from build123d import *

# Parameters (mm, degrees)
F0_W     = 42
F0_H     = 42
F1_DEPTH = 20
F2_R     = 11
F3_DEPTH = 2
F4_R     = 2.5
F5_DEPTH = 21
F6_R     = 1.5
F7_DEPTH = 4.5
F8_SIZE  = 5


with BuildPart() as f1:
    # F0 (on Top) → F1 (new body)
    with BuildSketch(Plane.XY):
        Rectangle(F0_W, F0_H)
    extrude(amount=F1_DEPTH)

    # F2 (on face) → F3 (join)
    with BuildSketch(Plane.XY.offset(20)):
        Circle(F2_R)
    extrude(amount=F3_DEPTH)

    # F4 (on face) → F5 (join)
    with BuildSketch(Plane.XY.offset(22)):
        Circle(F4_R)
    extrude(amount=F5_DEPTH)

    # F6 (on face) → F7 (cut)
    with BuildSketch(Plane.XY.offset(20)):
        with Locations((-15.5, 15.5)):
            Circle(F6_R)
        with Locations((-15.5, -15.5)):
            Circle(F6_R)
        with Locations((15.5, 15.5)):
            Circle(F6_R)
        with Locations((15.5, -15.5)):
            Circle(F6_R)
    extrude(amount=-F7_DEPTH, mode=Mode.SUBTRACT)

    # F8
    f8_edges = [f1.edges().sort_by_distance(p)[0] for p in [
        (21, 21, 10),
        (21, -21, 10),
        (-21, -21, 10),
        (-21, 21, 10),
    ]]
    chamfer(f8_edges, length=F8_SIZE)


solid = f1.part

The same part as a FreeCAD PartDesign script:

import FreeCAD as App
import Part
import Sketcher
from FreeCAD import Vector
Q = App.Units.Quantity


def edges_at(feature, points):
    """Names of the edges that pass closest to the given points."""
    edges = feature.Shape.Edges
    near = lambda p: min(range(len(edges)), key=lambda i: edges[i].distToShape(Part.Vertex(*p))[0])
    return sorted({f"Edge{near(p) + 1}" for p in points})


def add_polygon(sketch, points):
    """Adds a closed chain of lines whose ends are joined by coincident constraints."""
    first, n = sketch.GeometryCount, len(points)
    for a, b in zip(points, points[1:] + points[:1]):
        sketch.addGeometry(Part.LineSegment(App.Vector(*a, 0), App.Vector(*b, 0)), False)
    for i in range(n):
        sketch.addConstraint(Sketcher.Constraint("Coincident", first + i, 2, first + (i + 1) % n, 1))

doc = App.newDocument("Part")
body = doc.addObject("PartDesign::Body", "Body")

sketch1 = body.newObject("Sketcher::SketchObject", "Sketch")
sketch1.AttachmentSupport = (doc.getObject("XY_Plane"), [""])
sketch1.MapMode = "FlatFace"
add_polygon(sketch1, [(-21, 21), (-21, -21), (21, -21), (21, 21)])
sketch1.addConstraint([
    Sketcher.Constraint("Vertical", 0),
    Sketcher.Constraint("Horizontal", 1),
    Sketcher.Constraint("Vertical", 2),
    Sketcher.Constraint("Horizontal", 3),
    Sketcher.Constraint("Symmetric", 0, 2, 2, 2, -1, 1),
    Sketcher.Constraint("Equal", 3, 0),
    Sketcher.Constraint("DistanceX", 1, 1, 1, 2, Q("42 mm")),
])
pad1 = body.newObject("PartDesign::Pad", "Pad")
pad1.Profile = sketch1
pad1.Length = 20

sketch2 = body.newObject("Sketcher::SketchObject", "Sketch001")
sketch2.AttachmentSupport = (doc.getObject("XY_Plane"), [""])
sketch2.MapMode = "FlatFace"
sketch2.AttachmentOffset = App.Placement(Vector(0, 0, 20), App.Rotation())
sketch2.addGeometry(Part.Circle(Vector(0, 0, 0), Vector(0, 0, 1), 11), False)
sketch2.addConstraint([
    Sketcher.Constraint("Coincident", 0, 3, -1, 1),
    Sketcher.Constraint("Diameter", 0, Q("22 mm")),
])
pad2 = body.newObject("PartDesign::Pad", "Pad001")
pad2.Profile = sketch2
pad2.Length = 2

sketch3 = body.newObject("Sketcher::SketchObject", "Sketch002")
sketch3.AttachmentSupport = (doc.getObject("XY_Plane"), [""])
sketch3.MapMode = "FlatFace"
sketch3.AttachmentOffset = App.Placement(Vector(0, 0, 22), App.Rotation())
sketch3.addGeometry(Part.Circle(Vector(0, 0, 0), Vector(0, 0, 1), 2.5), False)
sketch3.addConstraint([
    Sketcher.Constraint("Coincident", 0, 3, -1, 1),
    Sketcher.Constraint("Diameter", 0, Q("5 mm")),
])
pad3 = body.newObject("PartDesign::Pad", "Pad002")
pad3.Profile = sketch3
pad3.Length = 21

sketch4 = body.newObject("Sketcher::SketchObject", "Sketch003")
sketch4.AttachmentSupport = (doc.getObject("XY_Plane"), [""])
sketch4.MapMode = "FlatFace"
sketch4.AttachmentOffset = App.Placement(Vector(0, 0, 20), App.Rotation())
sketch4.addGeometry([
    Part.Circle(Vector(-15.5, 15.5, 0), Vector(0, 0, 1), 1.5),
    Part.Circle(Vector(-15.5, -15.5, 0), Vector(0, 0, 1), 1.5),
    Part.Circle(Vector(15.5, 15.5, 0), Vector(0, 0, 1), 1.5),
    Part.Circle(Vector(15.5, -15.5, 0), Vector(0, 0, 1), 1.5),
], False)
sketch4.addConstraint([
    Sketcher.Constraint("Equal", 0, 1),
    Sketcher.Constraint("Equal", 1, 2),
    Sketcher.Constraint("Equal", 2, 3),
    Sketcher.Constraint("Symmetric", 1, 3, 2, 3, -1, 1),
    Sketcher.Constraint("Symmetric", 0, 3, 3, 3, -1, 1),
    Sketcher.Constraint("Symmetric", 0, 3, 2, 3, -2),
    Sketcher.Constraint("Diameter", 0, Q("3 mm")),
    Sketcher.Constraint("DistanceY", 1, 3, 0, 3, Q("31 mm")),
    Sketcher.Constraint("DistanceX", 0, 3, 2, 3, Q("31 mm")),
])
pocket1 = body.newObject("PartDesign::Pocket", "Pocket")
pocket1.Profile = sketch4
pocket1.Length = 4.5
doc.recompute()

chamfer = body.newObject("PartDesign::Chamfer", "Chamfer")
chamfer.Base = (pocket1, edges_at(pocket1, [
    (21, 21, 10),
    (21, -21, 10),
    (-21, -21, 10),
    (-21, 21, 10),
]))
chamfer.Size = 5

doc.recompute()
